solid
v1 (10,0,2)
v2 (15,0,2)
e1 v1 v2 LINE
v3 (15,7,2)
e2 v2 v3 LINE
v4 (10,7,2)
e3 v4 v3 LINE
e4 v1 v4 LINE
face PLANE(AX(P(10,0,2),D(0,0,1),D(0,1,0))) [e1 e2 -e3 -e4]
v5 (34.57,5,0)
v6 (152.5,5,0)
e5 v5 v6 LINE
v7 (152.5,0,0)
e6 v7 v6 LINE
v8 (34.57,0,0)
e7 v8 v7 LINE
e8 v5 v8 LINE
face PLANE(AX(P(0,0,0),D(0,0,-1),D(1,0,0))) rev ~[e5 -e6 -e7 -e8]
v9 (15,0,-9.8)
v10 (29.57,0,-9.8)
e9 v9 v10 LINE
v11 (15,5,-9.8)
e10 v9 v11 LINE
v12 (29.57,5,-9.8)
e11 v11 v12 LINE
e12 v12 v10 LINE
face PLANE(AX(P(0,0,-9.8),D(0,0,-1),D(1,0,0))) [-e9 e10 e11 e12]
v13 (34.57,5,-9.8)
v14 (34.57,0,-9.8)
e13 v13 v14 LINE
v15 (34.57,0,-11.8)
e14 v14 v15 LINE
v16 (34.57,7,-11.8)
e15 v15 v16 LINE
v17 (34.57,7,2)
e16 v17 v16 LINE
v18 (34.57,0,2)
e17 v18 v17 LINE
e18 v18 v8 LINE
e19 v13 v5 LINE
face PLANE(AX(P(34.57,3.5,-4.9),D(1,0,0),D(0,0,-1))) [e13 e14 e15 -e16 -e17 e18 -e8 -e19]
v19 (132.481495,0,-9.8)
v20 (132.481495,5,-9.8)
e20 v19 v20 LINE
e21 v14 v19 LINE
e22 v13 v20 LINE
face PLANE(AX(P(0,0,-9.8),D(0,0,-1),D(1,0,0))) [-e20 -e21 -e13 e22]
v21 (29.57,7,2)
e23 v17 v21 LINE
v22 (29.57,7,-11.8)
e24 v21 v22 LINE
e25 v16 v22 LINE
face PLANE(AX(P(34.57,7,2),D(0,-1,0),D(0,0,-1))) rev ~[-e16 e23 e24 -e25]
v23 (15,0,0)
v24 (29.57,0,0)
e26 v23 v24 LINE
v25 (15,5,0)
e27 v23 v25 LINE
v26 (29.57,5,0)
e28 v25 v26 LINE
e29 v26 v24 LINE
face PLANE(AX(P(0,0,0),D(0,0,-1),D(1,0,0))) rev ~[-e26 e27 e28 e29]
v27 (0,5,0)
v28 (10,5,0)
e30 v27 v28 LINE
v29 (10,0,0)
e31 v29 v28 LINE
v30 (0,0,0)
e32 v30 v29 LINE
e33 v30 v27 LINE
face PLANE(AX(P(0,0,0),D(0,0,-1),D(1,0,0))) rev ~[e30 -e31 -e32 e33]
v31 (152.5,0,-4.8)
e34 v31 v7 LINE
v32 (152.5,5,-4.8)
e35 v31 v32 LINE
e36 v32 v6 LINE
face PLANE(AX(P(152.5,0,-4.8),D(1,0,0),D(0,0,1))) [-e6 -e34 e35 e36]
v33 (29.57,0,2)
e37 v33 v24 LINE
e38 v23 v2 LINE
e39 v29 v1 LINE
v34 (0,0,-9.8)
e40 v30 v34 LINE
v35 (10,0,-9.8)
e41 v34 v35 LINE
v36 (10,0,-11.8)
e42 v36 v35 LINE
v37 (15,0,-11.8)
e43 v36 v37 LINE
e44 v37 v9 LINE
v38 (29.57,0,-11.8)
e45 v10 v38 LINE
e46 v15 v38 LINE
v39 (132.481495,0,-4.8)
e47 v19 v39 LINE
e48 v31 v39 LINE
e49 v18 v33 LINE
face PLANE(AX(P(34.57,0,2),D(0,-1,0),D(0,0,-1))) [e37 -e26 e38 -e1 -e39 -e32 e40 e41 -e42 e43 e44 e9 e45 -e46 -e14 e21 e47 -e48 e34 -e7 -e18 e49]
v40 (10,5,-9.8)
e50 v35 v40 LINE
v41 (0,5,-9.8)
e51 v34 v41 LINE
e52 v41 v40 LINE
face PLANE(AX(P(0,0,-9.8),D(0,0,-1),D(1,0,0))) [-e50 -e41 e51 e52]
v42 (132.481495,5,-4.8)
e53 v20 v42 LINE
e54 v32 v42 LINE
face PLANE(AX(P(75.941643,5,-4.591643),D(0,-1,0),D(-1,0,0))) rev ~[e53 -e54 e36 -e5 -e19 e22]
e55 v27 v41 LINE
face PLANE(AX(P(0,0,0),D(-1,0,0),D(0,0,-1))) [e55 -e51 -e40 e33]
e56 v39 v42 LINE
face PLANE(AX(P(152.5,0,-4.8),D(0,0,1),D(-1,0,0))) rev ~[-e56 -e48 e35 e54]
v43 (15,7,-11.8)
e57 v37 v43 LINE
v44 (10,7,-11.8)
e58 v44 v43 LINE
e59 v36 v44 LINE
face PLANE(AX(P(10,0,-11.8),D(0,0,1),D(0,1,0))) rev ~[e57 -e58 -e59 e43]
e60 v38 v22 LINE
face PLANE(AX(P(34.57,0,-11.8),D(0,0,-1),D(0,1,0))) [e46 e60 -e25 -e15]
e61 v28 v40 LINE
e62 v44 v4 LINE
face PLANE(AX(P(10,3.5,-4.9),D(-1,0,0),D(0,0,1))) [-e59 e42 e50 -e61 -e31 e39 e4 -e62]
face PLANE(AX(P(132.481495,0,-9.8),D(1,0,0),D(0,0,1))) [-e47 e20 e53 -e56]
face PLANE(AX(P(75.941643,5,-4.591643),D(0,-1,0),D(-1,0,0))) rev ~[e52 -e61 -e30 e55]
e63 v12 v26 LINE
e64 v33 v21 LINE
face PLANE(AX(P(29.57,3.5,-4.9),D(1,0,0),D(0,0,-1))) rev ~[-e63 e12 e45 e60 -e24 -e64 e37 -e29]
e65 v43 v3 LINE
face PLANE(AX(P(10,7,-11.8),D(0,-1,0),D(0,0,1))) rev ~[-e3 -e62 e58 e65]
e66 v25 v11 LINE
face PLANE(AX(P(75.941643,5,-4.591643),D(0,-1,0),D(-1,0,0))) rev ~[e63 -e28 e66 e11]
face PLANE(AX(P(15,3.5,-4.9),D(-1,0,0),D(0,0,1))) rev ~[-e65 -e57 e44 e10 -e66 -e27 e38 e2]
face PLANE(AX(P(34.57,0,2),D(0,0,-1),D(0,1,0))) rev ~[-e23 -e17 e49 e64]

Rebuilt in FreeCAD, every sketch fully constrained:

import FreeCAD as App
import Part
import Sketcher
from FreeCAD import Vector
Q = App.Units.Quantity

doc = App.newDocument("Part")
body = doc.addObject("PartDesign::Body", "Body")

# Sketch on XZ plane
sketch1 = doc.addObject("Sketcher::SketchObject", "Sketch")
body.addObject(sketch1)
sketch1.AttachmentSupport = (doc.XZ_Plane, [""])
sketch1.MapMode = "FlatFace"
sketch1.addGeometry([
    Part.LineSegment(Vector(132.481495, -4.8, 0), Vector(132.481495, -9.8, 0)),  # 0
    Part.LineSegment(Vector(132.481495, -9.8, 0), Vector(0, -9.8, 0)),  # 1
    Part.LineSegment(Vector(0, -9.8, 0), Vector(0, 0, 0)),  # 2
    Part.LineSegment(Vector(0, 0, 0), Vector(152.5, 0, 0)),  # 3
    Part.LineSegment(Vector(152.5, 0, 0), Vector(152.5, -4.8, 0)),  # 4
    Part.LineSegment(Vector(152.5, -4.8, 0), Vector(132.481495, -4.8, 0)),  # 5
], False)
sketch1.addConstraint([
    Sketcher.Constraint("Coincident", 0, 2, 1, 1),
    Sketcher.Constraint("Coincident", 1, 2, 2, 1),
    Sketcher.Constraint("Coincident", 2, 2, 3, 1),
    Sketcher.Constraint("Coincident", 3, 2, 4, 1),
    Sketcher.Constraint("Coincident", 4, 2, 5, 1),
    Sketcher.Constraint("Coincident", 5, 2, 0, 1),
    Sketcher.Constraint("Vertical", 0),
    Sketcher.Constraint("Horizontal", 1),
    Sketcher.Constraint("Vertical", 2),
    Sketcher.Constraint("Horizontal", 3),
    Sketcher.Constraint("Vertical", 4),
    Sketcher.Constraint("Horizontal", 5),
    Sketcher.Constraint("Coincident", 2, 2, -1, 1),
    Sketcher.Constraint("DistanceY", 0, 2, 0, 1, Q("5 mm")),
    Sketcher.Constraint("DistanceX", 3, 1, 3, 2, Q("152.5 mm")),
    Sketcher.Constraint("DistanceY", 2, 1, 2, 2, Q("9.8 mm")),
    Sketcher.Constraint("DistanceX", 1, 2, 1, 1, Q("132.481495 mm")),
])
pad1 = doc.addObject("PartDesign::Pad", "Pad")
body.addObject(pad1)
pad1.Profile = sketch1
pad1.Length = 5
pad1.Reversed = True

# Sketch on YZ plane
sketch2 = doc.addObject("Sketcher::SketchObject", "Sketch001")
body.addObject(sketch2)
sketch2.AttachmentSupport = (doc.YZ_Plane, [""])
sketch2.MapMode = "FlatFace"
sketch2.AttachmentOffset = App.Placement(Vector(0, 0, 10), App.Rotation())
sketch2.addGeometry([
    Part.LineSegment(Vector(7, -11.8, 0), Vector(0, -11.8, 0)),
    Part.LineSegment(Vector(0, -11.8, 0), Vector(0, 2, 0)),
    Part.LineSegment(Vector(0, 2, 0), Vector(7, 2, 0)),
    Part.LineSegment(Vector(7, 2, 0), Vector(7, -11.8, 0)),
], False)
sketch2.addConstraint([
    Sketcher.Constraint("Coincident", 0, 2, 1, 1),
    Sketcher.Constraint("Coincident", 1, 2, 2, 1),
    Sketcher.Constraint("Coincident", 2, 2, 3, 1),
    Sketcher.Constraint("Coincident", 3, 2, 0, 1),
    Sketcher.Constraint("Horizontal", 0),
    Sketcher.Constraint("Vertical", 1),
    Sketcher.Constraint("Horizontal", 2),
    Sketcher.Constraint("Vertical", 3),
    Sketcher.Constraint("PointOnObject", 0, 2, -2),
    Sketcher.Constraint("DistanceX", 0, 2, 0, 1, Q("7 mm")),
    Sketcher.Constraint("DistanceY", 1, 1, 1, 2, Q("13.8 mm")),
    Sketcher.Constraint("DistanceY", -1, 1, 1, 2, Q("2 mm")),
])
pad2 = doc.addObject("PartDesign::Pad", "Pad001")
body.addObject(pad2)
pad2.Profile = sketch2
pad2.Length = 5

# Sketch on YZ plane
sketch3 = doc.addObject("Sketcher::SketchObject", "Sketch002")
body.addObject(sketch3)
sketch3.AttachmentSupport = (doc.YZ_Plane, [""])
sketch3.MapMode = "FlatFace"
sketch3.AttachmentOffset = App.Placement(Vector(0, 0, 34.57), App.Rotation())
sketch3.addGeometry([
    Part.LineSegment(Vector(7, 2, 0), Vector(0, 2, 0)),
    Part.LineSegment(Vector(0, 2, 0), Vector(0, -11.8, 0)),
    Part.LineSegment(Vector(0, -11.8, 0), Vector(7, -11.8, 0)),
    Part.LineSegment(Vector(7, -11.8, 0), Vector(7, 2, 0)),
], False)
sketch3.addConstraint([
    Sketcher.Constraint("Coincident", 0, 2, 1, 1),
    Sketcher.Constraint("Coincident", 1, 2, 2, 1),
    Sketcher.Constraint("Coincident", 2, 2, 3, 1),
    Sketcher.Constraint("Coincident", 3, 2, 0, 1),
    Sketcher.Constraint("Horizontal", 0),
    Sketcher.Constraint("Vertical", 1),
    Sketcher.Constraint("Horizontal", 2),
    Sketcher.Constraint("Vertical", 3),
    Sketcher.Constraint("PointOnObject", 0, 2, -2),
    Sketcher.Constraint("DistanceX", 0, 2, 0, 1, Q("7 mm")),
    Sketcher.Constraint("DistanceY", 1, 2, 1, 1, Q("13.8 mm")),
    Sketcher.Constraint("DistanceY", -1, 1, 0, 2, Q("2 mm")),
])
pad3 = doc.addObject("PartDesign::Pad", "Pad002")
body.addObject(pad3)
pad3.Profile = sketch3
pad3.Length = 5
pad3.Reversed = True

doc.recompute()
